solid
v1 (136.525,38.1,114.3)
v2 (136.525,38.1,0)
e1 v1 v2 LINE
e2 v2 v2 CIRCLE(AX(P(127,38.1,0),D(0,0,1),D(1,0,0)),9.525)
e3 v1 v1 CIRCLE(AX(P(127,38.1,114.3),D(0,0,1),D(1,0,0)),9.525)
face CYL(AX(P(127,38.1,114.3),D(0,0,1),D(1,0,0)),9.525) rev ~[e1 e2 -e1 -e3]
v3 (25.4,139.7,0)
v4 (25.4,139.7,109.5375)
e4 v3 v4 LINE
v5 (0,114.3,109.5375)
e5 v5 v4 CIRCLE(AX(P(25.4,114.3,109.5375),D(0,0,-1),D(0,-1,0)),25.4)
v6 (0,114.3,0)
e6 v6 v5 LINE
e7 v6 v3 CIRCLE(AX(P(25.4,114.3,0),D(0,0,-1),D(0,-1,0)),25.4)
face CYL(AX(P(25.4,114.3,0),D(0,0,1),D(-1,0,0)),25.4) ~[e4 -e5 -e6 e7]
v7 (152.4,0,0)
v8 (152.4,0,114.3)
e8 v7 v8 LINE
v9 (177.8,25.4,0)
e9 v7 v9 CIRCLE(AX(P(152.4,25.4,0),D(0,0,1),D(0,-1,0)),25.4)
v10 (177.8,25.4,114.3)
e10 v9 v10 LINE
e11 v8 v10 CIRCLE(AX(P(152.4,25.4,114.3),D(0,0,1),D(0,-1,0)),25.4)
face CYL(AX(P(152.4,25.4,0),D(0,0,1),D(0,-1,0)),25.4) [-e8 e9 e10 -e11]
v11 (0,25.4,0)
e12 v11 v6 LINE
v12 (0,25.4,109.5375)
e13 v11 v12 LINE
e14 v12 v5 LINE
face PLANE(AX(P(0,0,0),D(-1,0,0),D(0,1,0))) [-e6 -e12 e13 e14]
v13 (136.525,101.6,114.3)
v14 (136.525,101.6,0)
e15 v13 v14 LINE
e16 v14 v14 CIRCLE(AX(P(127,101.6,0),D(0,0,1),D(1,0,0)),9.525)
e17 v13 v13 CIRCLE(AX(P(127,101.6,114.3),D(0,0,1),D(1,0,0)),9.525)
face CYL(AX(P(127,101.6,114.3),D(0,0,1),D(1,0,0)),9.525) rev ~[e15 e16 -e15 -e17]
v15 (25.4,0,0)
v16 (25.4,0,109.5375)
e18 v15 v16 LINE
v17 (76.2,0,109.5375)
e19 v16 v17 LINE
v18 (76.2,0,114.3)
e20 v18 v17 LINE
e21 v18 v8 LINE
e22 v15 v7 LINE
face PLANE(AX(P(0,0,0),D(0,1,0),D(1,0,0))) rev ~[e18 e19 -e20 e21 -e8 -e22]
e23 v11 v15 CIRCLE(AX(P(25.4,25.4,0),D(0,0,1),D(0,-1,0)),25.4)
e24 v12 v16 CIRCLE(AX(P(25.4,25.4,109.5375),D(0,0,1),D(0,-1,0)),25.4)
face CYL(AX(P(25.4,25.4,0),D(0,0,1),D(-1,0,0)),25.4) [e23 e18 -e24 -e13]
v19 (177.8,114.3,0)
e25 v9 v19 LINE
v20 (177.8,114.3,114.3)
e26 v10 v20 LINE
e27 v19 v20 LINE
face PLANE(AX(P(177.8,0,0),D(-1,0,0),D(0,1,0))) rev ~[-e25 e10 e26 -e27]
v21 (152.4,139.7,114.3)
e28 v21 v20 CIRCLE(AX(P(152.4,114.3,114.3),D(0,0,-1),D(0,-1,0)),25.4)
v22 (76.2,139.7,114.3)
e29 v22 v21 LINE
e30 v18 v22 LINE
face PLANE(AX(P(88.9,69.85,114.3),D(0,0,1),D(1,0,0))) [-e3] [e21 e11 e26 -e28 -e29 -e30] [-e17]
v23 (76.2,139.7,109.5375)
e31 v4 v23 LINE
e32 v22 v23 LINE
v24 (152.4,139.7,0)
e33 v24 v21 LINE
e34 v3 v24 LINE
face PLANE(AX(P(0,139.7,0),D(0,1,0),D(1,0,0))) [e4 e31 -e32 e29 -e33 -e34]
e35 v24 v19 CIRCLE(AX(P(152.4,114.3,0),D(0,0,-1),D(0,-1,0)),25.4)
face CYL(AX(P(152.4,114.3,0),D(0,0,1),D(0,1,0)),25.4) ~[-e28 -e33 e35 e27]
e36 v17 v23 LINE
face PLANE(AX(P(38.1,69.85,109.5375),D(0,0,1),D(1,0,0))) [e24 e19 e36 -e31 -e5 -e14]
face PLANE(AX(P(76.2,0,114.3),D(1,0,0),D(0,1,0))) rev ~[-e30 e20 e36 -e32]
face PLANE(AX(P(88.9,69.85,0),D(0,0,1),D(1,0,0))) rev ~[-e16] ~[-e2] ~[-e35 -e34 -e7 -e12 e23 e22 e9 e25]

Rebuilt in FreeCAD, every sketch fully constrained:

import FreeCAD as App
import Part
import Sketcher
Q = App.Units.Quantity


def edges_at(feature, points):
    """Names of the edges that pass closest to the given points."""
    edges = feature.Shape.Edges
    near = lambda p: min(range(len(edges)), key=lambda i: edges[i].distToShape(Part.Vertex(*p))[0])
    return sorted({f"Edge{near(p) + 1}" for p in points})

doc = App.newDocument("Part")
body = doc.addObject("PartDesign::Body", "Body")

sketch1 = body.newObject("Sketcher::SketchObject", "Sketch")
sketch1.AttachmentSupport = (doc.getObject("XY_Plane"), [""])
sketch1.MapMode = "FlatFace"
sketch1.addGeometry([
    Part.LineSegment(App.Vector(0, 139.7, 0), App.Vector(0, 0, 0)),
    Part.LineSegment(App.Vector(0, 0, 0), App.Vector(177.8, 0, 0)),
    Part.LineSegment(App.Vector(177.8, 0, 0), App.Vector(177.8, 139.7, 0)),
    Part.LineSegment(App.Vector(177.8, 139.7, 0), App.Vector(0, 139.7, 0)),
], False)
sketch1.addConstraint([
    Sketcher.Constraint("Coincident", 0, 2, 1, 1),
    Sketcher.Constraint("Coincident", 1, 2, 2, 1),
    Sketcher.Constraint("Coincident", 2, 2, 3, 1),
    Sketcher.Constraint("Coincident", 3, 2, 0, 1),
    Sketcher.Constraint("Vertical", 0),
    Sketcher.Constraint("Horizontal", 1),
    Sketcher.Constraint("Vertical", 2),
    Sketcher.Constraint("Horizontal", 3),
    Sketcher.Constraint("Coincident", 0, 2, -1, 1),
    Sketcher.Constraint("DistanceX", 1, 1, 1, 2, Q("7 in")),
    Sketcher.Constraint("DistanceY", 0, 2, 0, 1, Q("5.5 in")),
])
pad1 = body.newObject("PartDesign::Pad", "Pad")
pad1.Profile = sketch1
pad1.Length = Q("4.5 in")

sketch2 = body.newObject("Sketcher::SketchObject", "Sketch001")
sketch2.AttachmentSupport = (doc.getObject("XY_Plane"), [""])
sketch2.MapMode = "FlatFace"
sketch2.AttachmentOffset = App.Placement(App.Vector(0, 0, 4.5 * 25.4), App.Rotation())
sketch2.addGeometry([
    Part.LineSegment(App.Vector(0, 139.7, 0), App.Vector(0, 0, 0)),
    Part.LineSegment(App.Vector(0, 0, 0), App.Vector(76.2, 0, 0)),
    Part.LineSegment(App.Vector(76.2, 0, 0), App.Vector(76.2, 139.7, 0)),
    Part.LineSegment(App.Vector(76.2, 139.7, 0), App.Vector(0, 139.7, 0)),
], False)
sketch2.addConstraint([
    Sketcher.Constraint("Coincident", 0, 2, 1, 1),
    Sketcher.Constraint("Coincident", 1, 2, 2, 1),
    Sketcher.Constraint("Coincident", 2, 2, 3, 1),
    Sketcher.Constraint("Coincident", 3, 2, 0, 1),
    Sketcher.Constraint("Vertical", 0),
    Sketcher.Constraint("Horizontal", 1),
    Sketcher.Constraint("Vertical", 2),
    Sketcher.Constraint("Horizontal", 3),
    Sketcher.Constraint("Coincident", 0, 2, -1, 1),
    Sketcher.Constraint("DistanceX", 1, 1, 1, 2, Q("3 in")),
    Sketcher.Constraint("DistanceY", 0, 2, 0, 1, Q("5.5 in")),
])
pocket1 = body.newObject("PartDesign::Pocket", "Pocket")
pocket1.Profile = sketch2
pocket1.Length = Q("0.1875 in")

sketch3 = body.newObject("Sketcher::SketchObject", "Sketch002")
sketch3.AttachmentSupport = (doc.getObject("XY_Plane"), [""])
sketch3.MapMode = "FlatFace"
sketch3.AttachmentOffset = App.Placement(App.Vector(0, 0, 4.5 * 25.4), App.Rotation())
sketch3.addGeometry([
    Part.Circle(App.Vector(127, 101.6, 0), App.Vector(0, 0, 1), 9.525),
    Part.Circle(App.Vector(127, 38.1, 0), App.Vector(0, 0, 1), 9.525),
], False)
sketch3.addConstraint([
    Sketcher.Constraint("Equal", 0, 1),
    Sketcher.Constraint("Vertical", 0, 3, 1, 3),
    Sketcher.Constraint("Diameter", 0, Q("0.75 in")),
    Sketcher.Constraint("DistanceX", -1, 1, 0, 3, Q("5 in")),
    Sketcher.Constraint("DistanceY", -1, 1, 0, 3, Q("4 in")),
    Sketcher.Constraint("DistanceY", -1, 1, 1, 3, Q("1.5 in")),
])
pocket2 = body.newObject("PartDesign::Pocket", "Pocket001")
pocket2.Profile = sketch3
pocket2.Type = "ThroughAll"
doc.recompute()

fillet = body.newObject("PartDesign::Fillet", "Fillet")
fillet.Base = (pocket2, edges_at(pocket2, [
    (0, 0, 54.769),
    (177.8, 0, 57.15),
    (177.8, 139.7, 57.15),
    (0, 139.7, 54.769),
]))
fillet.Radius = Q("1 in")

doc.recompute()
